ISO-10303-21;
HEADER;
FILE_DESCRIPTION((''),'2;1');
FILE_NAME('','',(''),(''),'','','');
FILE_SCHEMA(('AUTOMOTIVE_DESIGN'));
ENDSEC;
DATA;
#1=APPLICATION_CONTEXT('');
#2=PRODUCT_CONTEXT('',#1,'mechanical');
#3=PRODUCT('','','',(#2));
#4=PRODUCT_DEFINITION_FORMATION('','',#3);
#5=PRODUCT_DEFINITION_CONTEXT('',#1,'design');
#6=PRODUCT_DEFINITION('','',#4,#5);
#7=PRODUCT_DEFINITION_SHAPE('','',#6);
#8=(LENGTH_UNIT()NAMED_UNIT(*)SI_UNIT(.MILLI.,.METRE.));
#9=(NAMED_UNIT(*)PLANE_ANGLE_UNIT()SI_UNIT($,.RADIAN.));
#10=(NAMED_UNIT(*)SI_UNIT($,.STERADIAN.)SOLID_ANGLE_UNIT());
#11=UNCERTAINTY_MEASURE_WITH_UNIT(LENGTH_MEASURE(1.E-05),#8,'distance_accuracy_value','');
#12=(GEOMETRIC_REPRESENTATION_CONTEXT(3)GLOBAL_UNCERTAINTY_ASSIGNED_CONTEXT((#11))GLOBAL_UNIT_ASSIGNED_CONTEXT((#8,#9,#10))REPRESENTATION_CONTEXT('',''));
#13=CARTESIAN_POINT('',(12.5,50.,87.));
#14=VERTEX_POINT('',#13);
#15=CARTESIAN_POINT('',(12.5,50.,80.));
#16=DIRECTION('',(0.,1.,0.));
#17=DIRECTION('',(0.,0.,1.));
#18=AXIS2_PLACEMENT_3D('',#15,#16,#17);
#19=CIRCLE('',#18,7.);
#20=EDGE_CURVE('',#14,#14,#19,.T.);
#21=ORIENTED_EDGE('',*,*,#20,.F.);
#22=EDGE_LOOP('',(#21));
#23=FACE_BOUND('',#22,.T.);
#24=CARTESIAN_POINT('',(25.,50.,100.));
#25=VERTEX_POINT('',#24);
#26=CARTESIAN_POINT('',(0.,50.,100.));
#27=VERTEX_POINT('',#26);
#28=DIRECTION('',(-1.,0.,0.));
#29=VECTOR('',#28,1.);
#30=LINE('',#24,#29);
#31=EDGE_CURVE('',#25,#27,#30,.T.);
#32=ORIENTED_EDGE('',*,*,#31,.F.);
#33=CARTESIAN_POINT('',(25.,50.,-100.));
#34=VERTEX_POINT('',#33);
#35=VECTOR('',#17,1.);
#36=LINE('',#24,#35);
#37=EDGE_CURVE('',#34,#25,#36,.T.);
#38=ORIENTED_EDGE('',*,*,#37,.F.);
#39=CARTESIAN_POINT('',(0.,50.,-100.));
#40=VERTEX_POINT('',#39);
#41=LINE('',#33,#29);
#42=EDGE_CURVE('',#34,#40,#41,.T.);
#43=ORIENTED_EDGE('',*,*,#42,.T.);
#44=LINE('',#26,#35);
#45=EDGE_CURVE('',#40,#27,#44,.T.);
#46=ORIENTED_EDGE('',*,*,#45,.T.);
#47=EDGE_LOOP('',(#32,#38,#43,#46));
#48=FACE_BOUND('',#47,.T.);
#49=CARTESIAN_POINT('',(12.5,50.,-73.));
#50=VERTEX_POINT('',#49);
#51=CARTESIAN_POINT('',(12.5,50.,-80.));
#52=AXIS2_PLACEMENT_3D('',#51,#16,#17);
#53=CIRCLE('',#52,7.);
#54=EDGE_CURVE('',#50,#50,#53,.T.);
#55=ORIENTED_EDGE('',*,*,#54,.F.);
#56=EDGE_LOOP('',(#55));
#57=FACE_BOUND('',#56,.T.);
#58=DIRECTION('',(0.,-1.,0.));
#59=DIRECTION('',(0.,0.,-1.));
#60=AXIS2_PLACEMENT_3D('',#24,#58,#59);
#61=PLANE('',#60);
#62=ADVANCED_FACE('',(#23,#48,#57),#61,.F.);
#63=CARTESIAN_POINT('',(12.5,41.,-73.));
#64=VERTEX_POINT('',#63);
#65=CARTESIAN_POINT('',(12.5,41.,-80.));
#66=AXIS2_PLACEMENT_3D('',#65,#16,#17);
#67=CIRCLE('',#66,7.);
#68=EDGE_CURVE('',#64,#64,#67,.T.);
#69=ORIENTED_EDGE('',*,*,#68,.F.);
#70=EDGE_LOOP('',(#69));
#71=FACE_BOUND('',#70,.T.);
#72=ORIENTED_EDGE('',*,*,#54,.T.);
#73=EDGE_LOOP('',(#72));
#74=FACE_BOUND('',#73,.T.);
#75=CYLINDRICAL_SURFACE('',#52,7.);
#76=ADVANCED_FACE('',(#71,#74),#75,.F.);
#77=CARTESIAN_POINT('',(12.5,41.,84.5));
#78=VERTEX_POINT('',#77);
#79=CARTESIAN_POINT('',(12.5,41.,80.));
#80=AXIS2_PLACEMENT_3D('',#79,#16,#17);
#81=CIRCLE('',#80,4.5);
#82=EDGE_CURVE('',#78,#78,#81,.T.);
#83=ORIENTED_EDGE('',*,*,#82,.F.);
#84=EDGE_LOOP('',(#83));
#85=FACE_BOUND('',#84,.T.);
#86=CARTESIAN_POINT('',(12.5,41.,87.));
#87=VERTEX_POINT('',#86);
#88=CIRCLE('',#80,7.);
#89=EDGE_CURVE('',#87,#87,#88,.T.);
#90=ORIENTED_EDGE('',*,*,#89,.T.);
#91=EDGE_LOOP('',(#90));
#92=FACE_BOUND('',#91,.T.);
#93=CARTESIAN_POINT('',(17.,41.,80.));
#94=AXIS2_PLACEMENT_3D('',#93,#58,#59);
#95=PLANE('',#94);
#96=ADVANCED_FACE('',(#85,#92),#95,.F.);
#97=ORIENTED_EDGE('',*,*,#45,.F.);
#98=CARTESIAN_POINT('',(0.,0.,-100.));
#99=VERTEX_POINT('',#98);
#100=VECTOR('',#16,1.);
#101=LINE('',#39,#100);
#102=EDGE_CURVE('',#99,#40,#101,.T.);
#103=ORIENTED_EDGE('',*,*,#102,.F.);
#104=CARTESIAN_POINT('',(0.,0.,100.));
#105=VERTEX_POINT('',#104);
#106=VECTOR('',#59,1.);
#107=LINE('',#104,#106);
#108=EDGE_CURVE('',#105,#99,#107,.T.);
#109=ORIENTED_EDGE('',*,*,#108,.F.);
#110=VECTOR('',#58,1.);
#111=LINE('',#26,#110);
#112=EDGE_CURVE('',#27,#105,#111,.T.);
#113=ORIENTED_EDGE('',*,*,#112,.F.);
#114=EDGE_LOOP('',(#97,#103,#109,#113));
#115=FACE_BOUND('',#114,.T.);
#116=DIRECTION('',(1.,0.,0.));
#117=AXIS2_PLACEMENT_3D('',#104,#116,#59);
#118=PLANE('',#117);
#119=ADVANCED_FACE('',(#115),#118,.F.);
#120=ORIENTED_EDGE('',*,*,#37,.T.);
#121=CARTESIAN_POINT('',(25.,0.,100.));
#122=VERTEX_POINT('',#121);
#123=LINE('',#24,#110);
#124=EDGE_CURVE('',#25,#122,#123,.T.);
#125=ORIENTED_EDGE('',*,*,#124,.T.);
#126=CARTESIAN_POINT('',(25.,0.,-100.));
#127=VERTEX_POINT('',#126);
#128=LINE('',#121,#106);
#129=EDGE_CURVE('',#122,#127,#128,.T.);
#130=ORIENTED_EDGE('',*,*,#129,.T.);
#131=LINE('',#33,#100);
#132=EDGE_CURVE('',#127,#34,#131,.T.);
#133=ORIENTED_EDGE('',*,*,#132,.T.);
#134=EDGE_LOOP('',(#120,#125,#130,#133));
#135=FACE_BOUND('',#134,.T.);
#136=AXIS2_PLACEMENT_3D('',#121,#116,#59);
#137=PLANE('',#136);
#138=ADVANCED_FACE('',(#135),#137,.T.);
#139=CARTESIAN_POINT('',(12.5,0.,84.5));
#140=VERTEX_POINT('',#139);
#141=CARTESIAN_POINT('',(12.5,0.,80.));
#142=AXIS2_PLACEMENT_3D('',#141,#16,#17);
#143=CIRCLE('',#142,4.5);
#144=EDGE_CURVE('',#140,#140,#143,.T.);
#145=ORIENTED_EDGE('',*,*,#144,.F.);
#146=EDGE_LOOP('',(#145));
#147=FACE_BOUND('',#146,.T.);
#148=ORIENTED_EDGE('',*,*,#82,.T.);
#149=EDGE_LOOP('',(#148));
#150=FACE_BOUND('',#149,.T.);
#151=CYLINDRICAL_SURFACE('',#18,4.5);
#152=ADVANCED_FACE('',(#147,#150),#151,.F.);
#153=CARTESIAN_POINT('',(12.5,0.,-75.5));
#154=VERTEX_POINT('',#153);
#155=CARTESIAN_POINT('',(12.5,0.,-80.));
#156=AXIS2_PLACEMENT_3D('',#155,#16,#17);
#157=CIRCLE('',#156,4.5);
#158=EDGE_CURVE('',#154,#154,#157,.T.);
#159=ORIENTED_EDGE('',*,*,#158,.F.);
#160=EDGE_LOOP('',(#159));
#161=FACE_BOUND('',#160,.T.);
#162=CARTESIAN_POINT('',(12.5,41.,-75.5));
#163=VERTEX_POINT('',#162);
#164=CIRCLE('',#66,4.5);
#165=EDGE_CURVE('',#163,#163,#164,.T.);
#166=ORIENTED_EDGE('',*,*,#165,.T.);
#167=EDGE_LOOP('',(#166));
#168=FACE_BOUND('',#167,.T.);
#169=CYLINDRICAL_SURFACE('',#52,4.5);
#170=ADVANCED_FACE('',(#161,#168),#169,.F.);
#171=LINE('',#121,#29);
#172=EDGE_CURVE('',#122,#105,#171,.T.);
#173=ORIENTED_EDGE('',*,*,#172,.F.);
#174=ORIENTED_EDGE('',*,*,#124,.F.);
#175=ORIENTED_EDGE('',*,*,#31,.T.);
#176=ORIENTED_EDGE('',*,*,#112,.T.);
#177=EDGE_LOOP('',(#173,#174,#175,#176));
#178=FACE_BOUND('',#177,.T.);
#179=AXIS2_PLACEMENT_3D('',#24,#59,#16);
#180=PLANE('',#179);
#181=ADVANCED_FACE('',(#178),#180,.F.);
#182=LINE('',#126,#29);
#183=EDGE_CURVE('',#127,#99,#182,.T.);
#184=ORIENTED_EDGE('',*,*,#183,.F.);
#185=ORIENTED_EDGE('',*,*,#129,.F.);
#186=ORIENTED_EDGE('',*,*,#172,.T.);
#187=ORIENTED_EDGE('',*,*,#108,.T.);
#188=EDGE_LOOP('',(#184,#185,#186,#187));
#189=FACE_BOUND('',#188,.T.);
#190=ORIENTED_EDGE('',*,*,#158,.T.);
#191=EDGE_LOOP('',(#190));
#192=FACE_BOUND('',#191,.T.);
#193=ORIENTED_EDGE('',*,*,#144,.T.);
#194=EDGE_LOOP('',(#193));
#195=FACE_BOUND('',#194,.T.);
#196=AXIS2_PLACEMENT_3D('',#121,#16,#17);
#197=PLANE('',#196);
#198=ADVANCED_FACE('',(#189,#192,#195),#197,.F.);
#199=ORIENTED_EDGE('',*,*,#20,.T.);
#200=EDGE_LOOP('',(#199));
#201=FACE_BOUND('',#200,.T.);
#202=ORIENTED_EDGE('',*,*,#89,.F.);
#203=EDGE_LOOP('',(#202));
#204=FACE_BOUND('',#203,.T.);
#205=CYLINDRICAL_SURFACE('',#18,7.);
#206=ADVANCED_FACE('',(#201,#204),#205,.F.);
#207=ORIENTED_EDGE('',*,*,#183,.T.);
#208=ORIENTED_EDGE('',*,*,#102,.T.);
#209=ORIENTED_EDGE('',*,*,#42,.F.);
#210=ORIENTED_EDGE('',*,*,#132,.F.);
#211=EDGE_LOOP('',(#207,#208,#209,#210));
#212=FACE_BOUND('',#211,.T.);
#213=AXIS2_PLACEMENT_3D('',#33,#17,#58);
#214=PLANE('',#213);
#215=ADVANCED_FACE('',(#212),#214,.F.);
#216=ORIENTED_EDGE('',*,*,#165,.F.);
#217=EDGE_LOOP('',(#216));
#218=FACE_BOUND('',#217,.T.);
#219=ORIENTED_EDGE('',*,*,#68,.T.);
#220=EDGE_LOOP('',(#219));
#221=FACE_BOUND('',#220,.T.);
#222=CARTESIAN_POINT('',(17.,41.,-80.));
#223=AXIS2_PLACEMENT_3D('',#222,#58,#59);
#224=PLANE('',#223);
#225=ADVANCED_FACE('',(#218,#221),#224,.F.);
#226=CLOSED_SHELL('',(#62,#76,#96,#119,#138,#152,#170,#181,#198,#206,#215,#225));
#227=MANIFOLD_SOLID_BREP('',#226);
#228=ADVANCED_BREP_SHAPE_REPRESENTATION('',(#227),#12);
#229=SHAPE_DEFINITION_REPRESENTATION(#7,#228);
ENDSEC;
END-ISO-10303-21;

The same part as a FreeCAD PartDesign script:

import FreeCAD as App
import Part
import Sketcher

V = App.Vector


def add_polygon(sketch, points):
    """Adds a closed chain of lines whose ends are joined by coincident constraints."""
    first, n = sketch.GeometryCount, len(points)
    for a, b in zip(points, points[1:] + points[:1]):
        sketch.addGeometry(Part.LineSegment(App.Vector(*a, 0), App.Vector(*b, 0)), False)
    for i in range(n):
        sketch.addConstraint(Sketcher.Constraint("Coincident", first + i, 2, first + (i + 1) % n, 1))

doc = App.newDocument("Part")
params = doc.addObject("Spreadsheet::Sheet", "Params")
for row, (alias, value) in enumerate([
    ("sketch1_width", "50 mm"),
    ("sketch1_height", "200 mm"),
    ("pad1_length", "25 mm"),
    ("sketch2_diameter", "9 mm"),
    ("hole_diameter", "9 mm"),
    ("hole_cbore_diameter", "14 mm"),
    ("hole_cbore_depth", "9 mm"),
], start=1):
    params.set(f"A{row}", alias)
    params.set(f"B{row}", "=" + value)
    params.setAlias(f"B{row}", alias)

body = doc.addObject("PartDesign::Body", "Body")

sketch1 = body.newObject("Sketcher::SketchObject", "Sketch")
sketch1.AttachmentSupport = (doc.getObject("YZ_Plane"), [""])
sketch1.MapMode = "FlatFace"
add_polygon(sketch1, [(50, 100), (0, 100), (0, -100), (50, -100)])
sketch1.addConstraint([
    Sketcher.Constraint("Horizontal", 0),
    Sketcher.Constraint("Vertical", 1),
    Sketcher.Constraint("Horizontal", 2),
    Sketcher.Constraint("Vertical", 3),
    Sketcher.Constraint("Symmetric", 0, 2, 1, 2, -1, 1),
    Sketcher.Constraint("DistanceX", 0, 2, 0, 1, 50.0),
    Sketcher.Constraint("DistanceY", 1, 2, 1, 1, 200.0),
])
sketch1.setExpression("Constraints[9]", "Params.sketch1_width")
sketch1.setExpression("Constraints[10]", "Params.sketch1_height")
pad1 = body.newObject("PartDesign::Pad", "Pad")
pad1.Profile = sketch1
pad1.setExpression("Length", "Params.pad1_length")

sketch2 = body.newObject("Sketcher::SketchObject", "Sketch001")
sketch2.AttachmentSupport = (doc.getObject("XZ_Plane"), [""])
sketch2.MapMode = "FlatFace"
sketch2.AttachmentOffset = App.Placement(V(0, 0, -50), App.Rotation())
sketch2.addGeometry([
    Part.Circle(V(12.5, 80, 0), V(0, 0, 1), 4.5),
    Part.Circle(V(12.5, -80, 0), V(0, 0, 1), 4.5),
], False)
sketch2.addConstraint([
    Sketcher.Constraint("Equal", 0, 1),
    Sketcher.Constraint("Symmetric", 0, 3, 1, 3, -1),
    Sketcher.Constraint("Diameter", 0, 9.0),
    Sketcher.Constraint("DistanceY", -1, 1, 0, 3, 80.0),
    Sketcher.Constraint("DistanceX", -1, 1, 0, 3, 12.5),
])
sketch2.setExpression("Constraints[2]", "Params.sketch2_diameter")
doc.recompute()
hole = body.newObject("PartDesign::Hole", "Hole")
hole.Profile = sketch2
hole.ThreadType = "None"
hole.setExpression("Diameter", "Params.hole_diameter")
hole.DepthType = "ThroughAll"
hole.HoleCutType = "Counterbore"
hole.setExpression("HoleCutDiameter", "Params.hole_cbore_diameter")
hole.setExpression("HoleCutDepth", "Params.hole_cbore_depth")
hole.Reversed = True

doc.recompute()
